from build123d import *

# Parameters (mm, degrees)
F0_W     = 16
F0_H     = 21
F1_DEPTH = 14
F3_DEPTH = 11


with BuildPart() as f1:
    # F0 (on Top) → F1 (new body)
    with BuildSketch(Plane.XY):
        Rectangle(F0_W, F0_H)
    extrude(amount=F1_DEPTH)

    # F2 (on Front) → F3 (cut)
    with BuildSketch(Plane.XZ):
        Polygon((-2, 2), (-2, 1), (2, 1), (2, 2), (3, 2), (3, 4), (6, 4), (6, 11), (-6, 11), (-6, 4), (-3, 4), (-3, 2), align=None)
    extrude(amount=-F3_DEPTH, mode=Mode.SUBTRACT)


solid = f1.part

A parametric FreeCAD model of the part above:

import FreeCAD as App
import Part
import Sketcher

V = App.Vector

doc = App.newDocument("Part")
params = doc.addObject("Spreadsheet::Sheet", "Params")
for row, (alias, value) in enumerate([
    ("sketch1_width", "16 mm"),
    ("sketch1_height", "21 mm"),
    ("pad1_length", "14 mm"),
    ("sketch2_width", "4 mm"),
    ("sketch2_width2", "1 mm"),
    ("sketch2_width3", "3 mm"),
    ("sketch2_height", "2 mm"),
    ("sketch2_height2", "7 mm"),
    ("pocket1_length", "11 mm"),
], start=1):
    params.set(f"A{row}", alias)
    params.set(f"B{row}", "=" + value)
    params.setAlias(f"B{row}", alias)

body = doc.addObject("PartDesign::Body", "Body")

# Sketch on XY plane
sketch1 = body.newObject("Sketcher::SketchObject", "Sketch")
sketch1.AttachmentSupport = (doc.getObject("XY_Plane"), [""])
sketch1.MapMode = "FlatFace"
sketch1.addGeometry(Part.LineSegment(V(-8, 10, 0), V(-8, -10, 0)), False)
sketch1.addGeometry(Part.LineSegment(V(-8, -10, 0), V(8, -10, 0)), False)
sketch1.addGeometry(Part.LineSegment(V(8, -10, 0), V(8, 10, 0)), False)
sketch1.addGeometry(Part.LineSegment(V(8, 10, 0), V(-8, 10, 0)), False)
sketch1.addConstraint(Sketcher.Constraint("Coincident", 0, 2, 1, 1))
sketch1.addConstraint(Sketcher.Constraint("Coincident", 1, 2, 2, 1))
sketch1.addConstraint(Sketcher.Constraint("Coincident", 2, 2, 3, 1))
sketch1.addConstraint(Sketcher.Constraint("Coincident", 3, 2, 0, 1))
sketch1.addConstraint(Sketcher.Constraint("Vertical", 0))
sketch1.addConstraint(Sketcher.Constraint("Horizontal", 1))
sketch1.addConstraint(Sketcher.Constraint("Vertical", 2))
sketch1.addConstraint(Sketcher.Constraint("Horizontal", 3))
sketch1.addConstraint(Sketcher.Constraint("Symmetric", 0, 2, 2, 2, -1, 1))
sketch1.addConstraint(Sketcher.Constraint("DistanceX", 1, 1, 1, 2, 16.0))
sketch1.addConstraint(Sketcher.Constraint("DistanceY", 0, 2, 0, 1, 21.0))
sketch1.setExpression("Constraints[9]", "Params.sketch1_width")
sketch1.setExpression("Constraints[10]", "Params.sketch1_height")
pad1 = body.newObject("PartDesign::Pad", "Pad")
pad1.Profile = sketch1
pad1.setExpression("Length", "Params.pad1_length")

# Sketch on XZ plane
sketch2 = body.newObject("Sketcher::SketchObject", "Sketch001")
sketch2.AttachmentSupport = (doc.getObject("XZ_Plane"), [""])
sketch2.MapMode = "FlatFace"
sketch2.addGeometry(Part.LineSegment(V(-2, 2, 0), V(-2, 1, 0)), False)
sketch2.addGeometry(Part.LineSegment(V(-2, 1, 0), V(2, 1, 0)), False)
sketch2.addGeometry(Part.LineSegment(V(2, 1, 0), V(2, 2, 0)), False)
sketch2.addGeometry(Part.LineSegment(V(2, 2, 0), V(3, 2, 0)), False)
sketch2.addGeometry(Part.LineSegment(V(3, 2, 0), V(3, 4, 0)), False)
sketch2.addGeometry(Part.LineSegment(V(3, 4, 0), V(6, 4, 0)), False)
sketch2.addGeometry(Part.LineSegment(V(6, 4, 0), V(6, 11, 0)), False)
sketch2.addGeometry(Part.LineSegment(V(6, 11, 0), V(-6, 11, 0)), False)
sketch2.addGeometry(Part.LineSegment(V(-6, 11, 0), V(-6, 4, 0)), False)
sketch2.addGeometry(Part.LineSegment(V(-6, 4, 0), V(-3, 4, 0)), False)
sketch2.addGeometry(Part.LineSegment(V(-3, 4, 0), V(-3, 2, 0)), False)
sketch2.addGeometry(Part.LineSegment(V(-3, 2, 0), V(-2, 2, 0)), False)
sketch2.addConstraint(Sketcher.Constraint("Coincident", 0, 2, 1, 1))
sketch2.addConstraint(Sketcher.Constraint("Coincident", 1, 2, 2, 1))
sketch2.addConstraint(Sketcher.Constraint("Coincident", 2, 2, 3, 1))
sketch2.addConstraint(Sketcher.Constraint("Coincident", 3, 2, 4, 1))
sketch2.addConstraint(Sketcher.Constraint("Coincident", 4, 2, 5, 1))
sketch2.addConstraint(Sketcher.Constraint("Coincident", 5, 2, 6, 1))
sketch2.addConstraint(Sketcher.Constraint("Coincident", 6, 2, 7, 1))
sketch2.addConstraint(Sketcher.Constraint("Coincident", 7, 2, 8, 1))
sketch2.addConstraint(Sketcher.Constraint("Coincident", 8, 2, 9, 1))
sketch2.addConstraint(Sketcher.Constraint("Coincident", 9, 2, 10, 1))
sketch2.addConstraint(Sketcher.Constraint("Coincident", 10, 2, 11, 1))
sketch2.addConstraint(Sketcher.Constraint("Coincident", 11, 2, 0, 1))
sketch2.addConstraint(Sketcher.Constraint("Vertical", 0))
sketch2.addConstraint(Sketcher.Constraint("Horizontal", 1))
sketch2.addConstraint(Sketcher.Constraint("Vertical", 2))
sketch2.addConstraint(Sketcher.Constraint("Horizontal", 3))
sketch2.addConstraint(Sketcher.Constraint("Vertical", 4))
sketch2.addConstraint(Sketcher.Constraint("Horizontal", 5))
sketch2.addConstraint(Sketcher.Constraint("Vertical", 6))
sketch2.addConstraint(Sketcher.Constraint("Horizontal", 7))
sketch2.addConstraint(Sketcher.Constraint("Vertical", 8))
sketch2.addConstraint(Sketcher.Constraint("Horizontal", 9))
sketch2.addConstraint(Sketcher.Constraint("Vertical", 10))
sketch2.addConstraint(Sketcher.Constraint("Horizontal", 11))
sketch2.addConstraint(Sketcher.Constraint("Symmetric", 5, 2, 8, 2, -2))
sketch2.addConstraint(Sketcher.Constraint("Symmetric", 3, 2, 10, 2, -2))
sketch2.addConstraint(Sketcher.Constraint("Equal", 3, 11))
sketch2.addConstraint(Sketcher.Constraint("Equal", 11, 0))
sketch2.addConstraint(Sketcher.Constraint("DistanceX", 1, 1, 1, 2, 4.0))
sketch2.addConstraint(Sketcher.Constraint("DistanceX", 3, 1, 3, 2, 1.0))
sketch2.addConstraint(Sketcher.Constraint("DistanceX", 5, 1, 5, 2, 3.0))
sketch2.addConstraint(Sketcher.Constraint("DistanceY", 4, 1, 4, 2, 2.0))
sketch2.addConstraint(Sketcher.Constraint("DistanceY", 6, 1, 6, 2, 7.0))
sketch2.addConstraint(Sketcher.Constraint("DistanceY", -1, 1, 0, 2, 1.0))
sketch2.setExpression("Constraints[28]", "Params.sketch2_width")
sketch2.setExpression("Constraints[29]", "Params.sketch2_width2")
sketch2.setExpression("Constraints[30]", "Params.sketch2_width3")
sketch2.setExpression("Constraints[31]", "Params.sketch2_height")
sketch2.setExpression("Constraints[32]", "Params.sketch2_height2")
pocket1 = body.newObject("PartDesign::Pocket", "Pocket")
pocket1.Profile = sketch2
pocket1.setExpression("Length", "Params.pocket1_length")

doc.recompute()
